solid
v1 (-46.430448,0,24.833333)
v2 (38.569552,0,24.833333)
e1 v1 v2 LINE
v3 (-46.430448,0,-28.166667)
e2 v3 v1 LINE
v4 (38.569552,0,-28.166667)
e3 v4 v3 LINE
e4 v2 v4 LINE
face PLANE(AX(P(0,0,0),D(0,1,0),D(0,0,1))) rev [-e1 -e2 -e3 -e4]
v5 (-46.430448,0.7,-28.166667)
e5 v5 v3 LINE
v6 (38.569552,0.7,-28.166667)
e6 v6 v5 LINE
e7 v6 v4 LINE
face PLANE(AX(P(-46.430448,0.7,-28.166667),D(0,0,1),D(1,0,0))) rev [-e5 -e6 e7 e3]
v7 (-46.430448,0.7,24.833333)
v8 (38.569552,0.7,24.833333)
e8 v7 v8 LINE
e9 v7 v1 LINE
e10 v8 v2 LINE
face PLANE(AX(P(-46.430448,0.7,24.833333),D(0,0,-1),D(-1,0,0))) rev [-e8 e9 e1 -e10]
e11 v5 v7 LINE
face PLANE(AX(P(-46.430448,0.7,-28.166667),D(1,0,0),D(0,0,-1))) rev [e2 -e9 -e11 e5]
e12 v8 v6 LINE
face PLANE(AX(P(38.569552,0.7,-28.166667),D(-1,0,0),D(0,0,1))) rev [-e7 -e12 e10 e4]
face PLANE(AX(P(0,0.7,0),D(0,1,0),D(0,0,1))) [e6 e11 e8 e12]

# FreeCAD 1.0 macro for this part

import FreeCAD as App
import Part
import Sketcher

doc = App.newDocument("Part")
body = doc.addObject("PartDesign::Body", "Body")

# Sketch on XZ plane
sketch1 = body.newObject("Sketcher::SketchObject", "Sketch")
sketch1.AttachmentSupport = (doc.getObject("XZ_Plane"), [""])
sketch1.MapMode = "FlatFace"
sketch1.addGeometry([
    Part.LineSegment(App.Vector(-46.430448, -28.166667, 0), App.Vector(-46.430448, 24.833333, 0)),
    Part.LineSegment(App.Vector(-46.430448, 24.833333, 0), App.Vector(38.569552, 24.833333, 0)),
    Part.LineSegment(App.Vector(38.569552, 24.833333, 0), App.Vector(38.569552, -28.166667, 0)),
    Part.LineSegment(App.Vector(38.569552, -28.166667, 0), App.Vector(-46.430448, -28.166667, 0)),
], False)
sketch1.addConstraint([
    Sketcher.Constraint("Coincident", 0, 2, 1, 1),
    Sketcher.Constraint("Coincident", 1, 2, 2, 1),
    Sketcher.Constraint("Coincident", 2, 2, 3, 1),
    Sketcher.Constraint("Coincident", 3, 2, 0, 1),
    Sketcher.Constraint("Vertical", 0),
    Sketcher.Constraint("Horizontal", 1),
    Sketcher.Constraint("Vertical", 2),
    Sketcher.Constraint("Horizontal", 3),
    Sketcher.Constraint("DistanceX", 1, 1, 1, 2, 85.0),
    Sketcher.Constraint("DistanceY", 0, 1, 0, 2, 53.0),
    Sketcher.Constraint("DistanceX", 0, 2, -1, 1, 46.430448),
    Sketcher.Constraint("DistanceY", -1, 1, 0, 2, 24.833333),
])
pad1 = body.newObject("PartDesign::Pad", "Pad")
pad1.Profile = sketch1
pad1.Length = 0.7
pad1.Reversed = True

doc.recompute()
